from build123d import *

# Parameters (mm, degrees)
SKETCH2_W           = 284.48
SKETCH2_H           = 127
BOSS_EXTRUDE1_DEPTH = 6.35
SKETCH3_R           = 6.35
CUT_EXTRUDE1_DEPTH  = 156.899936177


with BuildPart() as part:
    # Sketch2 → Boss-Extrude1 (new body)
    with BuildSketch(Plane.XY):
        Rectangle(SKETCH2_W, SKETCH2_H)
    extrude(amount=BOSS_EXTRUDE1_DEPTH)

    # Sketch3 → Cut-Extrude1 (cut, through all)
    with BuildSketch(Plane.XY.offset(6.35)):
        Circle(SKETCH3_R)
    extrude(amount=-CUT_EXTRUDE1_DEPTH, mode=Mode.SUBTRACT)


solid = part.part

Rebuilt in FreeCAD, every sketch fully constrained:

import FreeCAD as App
import Part
import Sketcher
from FreeCAD import Vector
Q = App.Units.Quantity

doc = App.newDocument("Part")
params = doc.addObject("Spreadsheet::Sheet", "Params")
for row, (alias, value) in enumerate([
    ("sketch1_height", "5 in"),
    ("sketch1_width", "11.2 in"),
    ("pad1_length", "0.25 in"),
    ("sketch2_diameter", "0.5 in"),
], start=1):
    params.set(f"A{row}", alias)
    params.set(f"B{row}", "=" + value)
    params.setAlias(f"B{row}", alias)

body = doc.addObject("PartDesign::Body", "Body")

# Sketch on XY plane
sketch1 = doc.addObject("Sketcher::SketchObject", "Sketch")
body.addObject(sketch1)
sketch1.AttachmentSupport = (doc.XY_Plane, [""])
sketch1.MapMode = "FlatFace"
sketch1.addGeometry(Part.LineSegment(Vector(-142, 64, 0), Vector(-142, -64, 0)), False)
sketch1.addGeometry(Part.LineSegment(Vector(-142, -64, 0), Vector(142, -64, 0)), False)
sketch1.addGeometry(Part.LineSegment(Vector(142, -64, 0), Vector(142, 64, 0)), False)
sketch1.addGeometry(Part.LineSegment(Vector(142, 64, 0), Vector(-142, 64, 0)), False)
sketch1.addConstraint(Sketcher.Constraint("Coincident", 0, 2, 1, 1))
sketch1.addConstraint(Sketcher.Constraint("Coincident", 1, 2, 2, 1))
sketch1.addConstraint(Sketcher.Constraint("Coincident", 2, 2, 3, 1))
sketch1.addConstraint(Sketcher.Constraint("Coincident", 3, 2, 0, 1))
sketch1.addConstraint(Sketcher.Constraint("Vertical", 0))
sketch1.addConstraint(Sketcher.Constraint("Horizontal", 1))
sketch1.addConstraint(Sketcher.Constraint("Vertical", 2))
sketch1.addConstraint(Sketcher.Constraint("Horizontal", 3))
sketch1.addConstraint(Sketcher.Constraint("Symmetric", 0, 2, 2, 2, -1, 1))
sketch1.addConstraint(Sketcher.Constraint("DistanceY", 0, 2, 0, 1, Q("5 in")))
sketch1.addConstraint(Sketcher.Constraint("DistanceX", 1, 1, 1, 2, Q("11.2 in")))
sketch1.setExpression("Constraints[9]", "Params.sketch1_height")
sketch1.setExpression("Constraints[10]", "Params.sketch1_width")
pad1 = doc.addObject("PartDesign::Pad", "Pad")
body.addObject(pad1)
pad1.Profile = sketch1
pad1.setExpression("Length", "Params.pad1_length")

# Sketch on XY plane
sketch2 = doc.addObject("Sketcher::SketchObject", "Sketch001")
body.addObject(sketch2)
sketch2.AttachmentSupport = (doc.XY_Plane, [""])
sketch2.MapMode = "FlatFace"
sketch2.AttachmentOffset = App.Placement(Vector(0, 0, 0.25 * 25.4), App.Rotation())
sketch2.addGeometry(Part.Circle(Vector(0, 0, 0), Vector(0, 0, 1), 6), False)
sketch2.addConstraint(Sketcher.Constraint("Coincident", 0, 3, -1, 1))
sketch2.addConstraint(Sketcher.Constraint("Diameter", 0, Q("0.5 in")))
sketch2.setExpression("Constraints[1]", "Params.sketch2_diameter")
pocket1 = doc.addObject("PartDesign::Pocket", "Pocket")
body.addObject(pocket1)
pocket1.Profile = sketch2
pocket1.Type = "ThroughAll"

doc.recompute()
